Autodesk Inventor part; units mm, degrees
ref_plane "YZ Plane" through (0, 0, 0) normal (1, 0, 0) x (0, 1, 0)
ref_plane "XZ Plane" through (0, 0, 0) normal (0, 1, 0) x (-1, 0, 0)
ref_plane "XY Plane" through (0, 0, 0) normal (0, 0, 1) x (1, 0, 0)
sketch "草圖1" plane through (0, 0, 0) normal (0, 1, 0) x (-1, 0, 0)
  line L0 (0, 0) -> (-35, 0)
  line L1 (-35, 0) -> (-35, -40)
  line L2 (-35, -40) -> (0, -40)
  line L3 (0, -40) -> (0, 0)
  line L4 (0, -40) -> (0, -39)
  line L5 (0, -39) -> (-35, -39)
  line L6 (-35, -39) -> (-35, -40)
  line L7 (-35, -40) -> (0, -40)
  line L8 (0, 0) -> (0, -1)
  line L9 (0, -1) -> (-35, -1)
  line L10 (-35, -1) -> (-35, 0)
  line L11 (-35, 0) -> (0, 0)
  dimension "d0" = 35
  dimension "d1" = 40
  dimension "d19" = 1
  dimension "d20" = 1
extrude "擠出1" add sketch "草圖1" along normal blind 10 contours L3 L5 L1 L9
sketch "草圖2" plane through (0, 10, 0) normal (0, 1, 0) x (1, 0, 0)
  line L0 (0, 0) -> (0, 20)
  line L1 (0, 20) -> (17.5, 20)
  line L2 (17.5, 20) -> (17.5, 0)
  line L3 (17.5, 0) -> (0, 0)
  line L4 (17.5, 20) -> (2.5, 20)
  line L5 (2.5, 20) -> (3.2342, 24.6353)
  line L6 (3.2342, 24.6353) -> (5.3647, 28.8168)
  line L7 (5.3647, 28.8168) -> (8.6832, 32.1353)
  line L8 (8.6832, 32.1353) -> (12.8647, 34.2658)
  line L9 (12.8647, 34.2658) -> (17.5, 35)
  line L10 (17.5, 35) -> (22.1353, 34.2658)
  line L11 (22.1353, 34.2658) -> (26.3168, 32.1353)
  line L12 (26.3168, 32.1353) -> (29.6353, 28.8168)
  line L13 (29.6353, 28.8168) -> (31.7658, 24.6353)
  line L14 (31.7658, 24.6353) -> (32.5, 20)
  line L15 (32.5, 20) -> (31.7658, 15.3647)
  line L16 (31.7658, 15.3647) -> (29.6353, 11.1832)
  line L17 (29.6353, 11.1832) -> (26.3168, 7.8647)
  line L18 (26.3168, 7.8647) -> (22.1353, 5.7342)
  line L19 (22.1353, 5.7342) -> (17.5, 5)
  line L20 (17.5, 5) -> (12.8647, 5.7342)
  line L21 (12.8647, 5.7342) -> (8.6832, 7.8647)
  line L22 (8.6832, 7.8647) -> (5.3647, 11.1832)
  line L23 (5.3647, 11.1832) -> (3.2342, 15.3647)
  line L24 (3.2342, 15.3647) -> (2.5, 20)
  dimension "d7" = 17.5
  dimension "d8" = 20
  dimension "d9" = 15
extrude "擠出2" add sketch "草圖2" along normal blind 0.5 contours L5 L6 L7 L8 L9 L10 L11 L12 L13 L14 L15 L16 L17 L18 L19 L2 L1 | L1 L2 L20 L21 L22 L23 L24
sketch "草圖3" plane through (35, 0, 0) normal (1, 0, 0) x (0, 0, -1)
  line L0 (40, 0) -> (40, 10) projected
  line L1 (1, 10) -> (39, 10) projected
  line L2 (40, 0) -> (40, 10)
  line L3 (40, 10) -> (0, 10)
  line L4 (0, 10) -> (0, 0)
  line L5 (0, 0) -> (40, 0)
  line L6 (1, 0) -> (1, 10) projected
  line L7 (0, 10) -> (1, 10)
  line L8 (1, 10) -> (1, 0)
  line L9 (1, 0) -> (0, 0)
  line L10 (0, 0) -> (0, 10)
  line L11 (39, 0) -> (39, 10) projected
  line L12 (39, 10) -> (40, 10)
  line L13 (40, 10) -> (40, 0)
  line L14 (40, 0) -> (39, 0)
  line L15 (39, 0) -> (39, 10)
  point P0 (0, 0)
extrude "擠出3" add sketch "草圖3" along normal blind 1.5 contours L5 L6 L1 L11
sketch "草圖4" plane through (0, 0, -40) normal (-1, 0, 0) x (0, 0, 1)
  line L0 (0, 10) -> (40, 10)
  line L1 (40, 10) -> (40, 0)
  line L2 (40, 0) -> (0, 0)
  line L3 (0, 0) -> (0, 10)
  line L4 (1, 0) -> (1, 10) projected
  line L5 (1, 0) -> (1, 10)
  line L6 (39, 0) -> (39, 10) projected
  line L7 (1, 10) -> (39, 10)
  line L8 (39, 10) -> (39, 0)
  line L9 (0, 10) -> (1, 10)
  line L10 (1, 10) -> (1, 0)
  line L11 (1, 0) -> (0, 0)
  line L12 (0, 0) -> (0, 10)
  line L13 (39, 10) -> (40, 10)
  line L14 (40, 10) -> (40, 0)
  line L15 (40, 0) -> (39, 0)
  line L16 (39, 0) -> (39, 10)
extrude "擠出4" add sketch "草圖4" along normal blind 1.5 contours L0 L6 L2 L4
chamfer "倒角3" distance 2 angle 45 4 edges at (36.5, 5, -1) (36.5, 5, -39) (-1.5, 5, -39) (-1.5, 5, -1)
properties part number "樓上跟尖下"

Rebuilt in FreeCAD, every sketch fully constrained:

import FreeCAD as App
import Part
import Sketcher

V = App.Vector
Q = App.Units.Quantity


def edges_at(feature, points):
    """Names of the edges that pass closest to the given points."""
    edges = feature.Shape.Edges
    near = lambda p: min(range(len(edges)), key=lambda i: edges[i].distToShape(Part.Vertex(*p))[0])
    return sorted({f"Edge{near(p) + 1}" for p in points})

doc = App.newDocument("Part")
params = doc.addObject("Spreadsheet::Sheet", "Params")
for row, (alias, value) in enumerate([
    ("sketch1_width", "35 mm"),
    ("sketch1_height", "38 mm"),
    ("pad1_length", "10 mm"),
    ("pad2_length", "0.5 mm"),
    ("sketch3_width", "10 mm"),
    ("sketch3_height", "38 mm"),
    ("pad3_length", "1.5 mm"),
    ("sketch4_width", "10 mm"),
    ("sketch4_height", "38 mm"),
    ("pad4_length", "1.5 mm"),
    ("chamfer_size", "2 mm"),
], start=1):
    params.set(f"A{row}", alias)
    params.set(f"B{row}", "=" + value)
    params.setAlias(f"B{row}", alias)

body = doc.addObject("PartDesign::Body", "Body")

# Sketch on XZ plane
sketch1 = body.newObject("Sketcher::SketchObject", "Sketch")
sketch1.AttachmentSupport = (doc.getObject("XZ_Plane"), [""])
sketch1.MapMode = "FlatFace"
sketch1.addGeometry([
    Part.LineSegment(V(0, -39, 0), V(0, -1, 0)),
    Part.LineSegment(V(0, -1, 0), V(35, -1, 0)),
    Part.LineSegment(V(35, -1, 0), V(35, -39, 0)),
    Part.LineSegment(V(35, -39, 0), V(0, -39, 0)),
], False)
sketch1.addConstraint([
    Sketcher.Constraint("Coincident", 0, 2, 1, 1),
    Sketcher.Constraint("Coincident", 1, 2, 2, 1),
    Sketcher.Constraint("Coincident", 2, 2, 3, 1),
    Sketcher.Constraint("Coincident", 3, 2, 0, 1),
    Sketcher.Constraint("Vertical", 0),
    Sketcher.Constraint("Horizontal", 1),
    Sketcher.Constraint("Vertical", 2),
    Sketcher.Constraint("Horizontal", 3),
    Sketcher.Constraint("PointOnObject", 0, 2, -2),
    Sketcher.Constraint("DistanceX", 1, 1, 1, 2, Q("35 mm")),
    Sketcher.Constraint("DistanceY", 0, 2, -1, 1, Q("1 mm")),
    Sketcher.Constraint("DistanceY", 0, 1, 0, 2, Q("38 mm")),
])
sketch1.setExpression("Constraints[9]", "Params.sketch1_width")
sketch1.setExpression("Constraints[11]", "Params.sketch1_height")
pad1 = body.newObject("PartDesign::Pad", "Pad")
pad1.Profile = sketch1
pad1.setExpression("Length", "Params.pad1_length")
pad1.Reversed = True

# Sketch on XZ plane
sketch2 = body.newObject("Sketcher::SketchObject", "Sketch001")
sketch2.AttachmentSupport = (doc.getObject("XZ_Plane"), [""])
sketch2.MapMode = "FlatFace"
sketch2.AttachmentOffset = App.Placement(V(0, 0, -10), App.Rotation())
sketch2.addGeometry([
    Part.LineSegment(V(3.2342, -24.6353, 0), V(2.5, -20, 0)),  # 0
    Part.LineSegment(V(2.5, -20, 0), V(3.2342, -15.3647, 0)),  # 1
    Part.LineSegment(V(3.2342, -15.3647, 0), V(5.3647, -11.1832, 0)),  # 2
    Part.LineSegment(V(5.3647, -11.1832, 0), V(8.6832, -7.8647, 0)),  # 3
    Part.LineSegment(V(8.6832, -7.8647, 0), V(12.8647, -5.7342, 0)),  # 4
    Part.LineSegment(V(12.8647, -5.7342, 0), V(17.5, -5, 0)),  # 5
    Part.LineSegment(V(17.5, -5, 0), V(22.1353, -5.7342, 0)),  # 6
    Part.LineSegment(V(22.1353, -5.7342, 0), V(26.3168, -7.8647, 0)),  # 7
    Part.LineSegment(V(26.3168, -7.8647, 0), V(29.6353, -11.1832, 0)),  # 8
    Part.LineSegment(V(29.6353, -11.1832, 0), V(31.7658, -15.3647, 0)),  # 9
    Part.LineSegment(V(31.7658, -15.3647, 0), V(32.5, -20, 0)),  # 10
    Part.LineSegment(V(32.5, -20, 0), V(31.7658, -24.6353, 0)),  # 11
    Part.LineSegment(V(31.7658, -24.6353, 0), V(29.6353, -28.8168, 0)),  # 12
    Part.LineSegment(V(29.6353, -28.8168, 0), V(26.3168, -32.1353, 0)),  # 13
    Part.LineSegment(V(26.3168, -32.1353, 0), V(22.1353, -34.2658, 0)),  # 14
    Part.LineSegment(V(22.1353, -34.2658, 0), V(17.5, -35, 0)),  # 15
    Part.LineSegment(V(17.5, -35, 0), V(12.8647, -34.2658, 0)),  # 16
    Part.LineSegment(V(12.8647, -34.2658, 0), V(8.6832, -32.1353, 0)),  # 17
    Part.LineSegment(V(8.6832, -32.1353, 0), V(5.3647, -28.8168, 0)),  # 18
    Part.LineSegment(V(5.3647, -28.8168, 0), V(3.2342, -24.6353, 0)),  # 19
], False)
sketch2.addConstraint([
    Sketcher.Constraint("Coincident", 0, 2, 1, 1),
    Sketcher.Constraint("Coincident", 1, 2, 2, 1),
    Sketcher.Constraint("Coincident", 2, 2, 3, 1),
    Sketcher.Constraint("Coincident", 3, 2, 4, 1),
    Sketcher.Constraint("Coincident", 4, 2, 5, 1),
    Sketcher.Constraint("Coincident", 5, 2, 6, 1),
    Sketcher.Constraint("Coincident", 6, 2, 7, 1),
    Sketcher.Constraint("Coincident", 7, 2, 8, 1),
    Sketcher.Constraint("Coincident", 8, 2, 9, 1),
    Sketcher.Constraint("Coincident", 9, 2, 10, 1),
    Sketcher.Constraint("Coincident", 10, 2, 11, 1),
    Sketcher.Constraint("Coincident", 11, 2, 12, 1),
    Sketcher.Constraint("Coincident", 12, 2, 13, 1),
    Sketcher.Constraint("Coincident", 13, 2, 14, 1),
    Sketcher.Constraint("Coincident", 14, 2, 15, 1),
    Sketcher.Constraint("Coincident", 15, 2, 16, 1),
    Sketcher.Constraint("Coincident", 16, 2, 17, 1),
    Sketcher.Constraint("Coincident", 17, 2, 18, 1),
    Sketcher.Constraint("Coincident", 18, 2, 19, 1),
    Sketcher.Constraint("Coincident", 19, 2, 0, 1),
    Sketcher.Constraint("Perpendicular", 0, 5),
    Sketcher.Constraint("Perpendicular", 1, 6),
    Sketcher.Constraint("Perpendicular", 2, 7),
    Sketcher.Constraint("Perpendicular", 3, 8),
    Sketcher.Constraint("Perpendicular", 4, 9),
    Sketcher.Constraint("Perpendicular", 5, 10),
    Sketcher.Constraint("Perpendicular", 6, 11),
    Sketcher.Constraint("Perpendicular", 7, 12),
    Sketcher.Constraint("Perpendicular", 8, 13),
    Sketcher.Constraint("Perpendicular", 9, 14),
    Sketcher.Constraint("Perpendicular", 10, 15),
    Sketcher.Constraint("Perpendicular", 11, 16),
    Sketcher.Constraint("Perpendicular", 12, 17),
    Sketcher.Constraint("Perpendicular", 13, 18),
    Sketcher.Constraint("Perpendicular", 14, 19),
    Sketcher.Constraint("Horizontal", 4, 2, 6, 2),
    Sketcher.Constraint("Horizontal", 3, 2, 7, 2),
    Sketcher.Constraint("Horizontal", 2, 2, 8, 2),
    Sketcher.Constraint("Horizontal", 1, 2, 9, 2),
    Sketcher.Constraint("Horizontal", 0, 2, 10, 2),
    Sketcher.Constraint("Horizontal", 14, 2, 16, 2),
    Sketcher.Constraint("Horizontal", 13, 2, 17, 2),
    Sketcher.Constraint("Horizontal", 12, 2, 18, 2),
    Sketcher.Constraint("Horizontal", 11, 2, 19, 2),
    Sketcher.Constraint("Vertical", 9, 2, 11, 2),
    Sketcher.Constraint("Vertical", 8, 2, 12, 2),
    Sketcher.Constraint("Vertical", 7, 2, 13, 2),
    Sketcher.Constraint("Vertical", 6, 2, 14, 2),
    Sketcher.Constraint("Vertical", 5, 2, 15, 2),
    Sketcher.Constraint("Vertical", 4, 2, 16, 2),
    Sketcher.Constraint("Vertical", 3, 2, 17, 2),
    Sketcher.Constraint("Equal", 1, 2),
    Sketcher.Constraint("Equal", 2, 3),
    Sketcher.Constraint("Equal", 3, 4),
    Sketcher.Constraint("Equal", 4, 5),
    Sketcher.Constraint("DistanceY", 0, 2, -1, 1, Q("20 mm")),
    Sketcher.Constraint("DistanceX", 0, 2, 5, 2, Q("15 mm")),
    Sketcher.Constraint("DistanceX", -1, 1, 5, 2, Q("17.5 mm")),
    Sketcher.Constraint("Angle", 0, Q("99.0005 deg")),
    Sketcher.Constraint("Angle", 2, Q("63.0009 deg")),
])
pad2 = body.newObject("PartDesign::Pad", "Pad001")
pad2.Profile = sketch2
pad2.setExpression("Length", "Params.pad2_length")
pad2.Reversed = True

# Sketch on YZ plane
sketch3 = body.newObject("Sketcher::SketchObject", "Sketch002")
sketch3.AttachmentSupport = (doc.getObject("YZ_Plane"), [""])
sketch3.MapMode = "FlatFace"
sketch3.AttachmentOffset = App.Placement(V(0, 0, 35), App.Rotation())
sketch3.addGeometry([
    Part.LineSegment(V(0, -1, 0), V(0, -39, 0)),
    Part.LineSegment(V(0, -39, 0), V(10, -39, 0)),
    Part.LineSegment(V(10, -39, 0), V(10, -1, 0)),
    Part.LineSegment(V(10, -1, 0), V(0, -1, 0)),
], False)
sketch3.addConstraint([
    Sketcher.Constraint("Coincident", 0, 2, 1, 1),
    Sketcher.Constraint("Coincident", 1, 2, 2, 1),
    Sketcher.Constraint("Coincident", 2, 2, 3, 1),
    Sketcher.Constraint("Coincident", 3, 2, 0, 1),
    Sketcher.Constraint("Vertical", 0),
    Sketcher.Constraint("Horizontal", 1),
    Sketcher.Constraint("Vertical", 2),
    Sketcher.Constraint("Horizontal", 3),
    Sketcher.Constraint("PointOnObject", 0, 2, -2),
    Sketcher.Constraint("DistanceX", 1, 1, 1, 2, Q("10 mm")),
    Sketcher.Constraint("DistanceY", 0, 2, 0, 1, Q("38 mm")),
    Sketcher.Constraint("DistanceY", 0, 2, -1, 1, Q("39 mm")),
])
sketch3.setExpression("Constraints[9]", "Params.sketch3_width")
sketch3.setExpression("Constraints[10]", "Params.sketch3_height")
pad3 = body.newObject("PartDesign::Pad", "Pad002")
pad3.Profile = sketch3
pad3.setExpression("Length", "Params.pad3_length")

# Sketch on YZ plane
sketch4 = body.newObject("Sketcher::SketchObject", "Sketch003")
sketch4.AttachmentSupport = (doc.getObject("YZ_Plane"), [""])
sketch4.MapMode = "FlatFace"
sketch4.addGeometry([
    Part.LineSegment(V(10, -1, 0), V(10, -39, 0)),
    Part.LineSegment(V(10, -39, 0), V(0, -39, 0)),
    Part.LineSegment(V(0, -39, 0), V(0, -1, 0)),
    Part.LineSegment(V(0, -1, 0), V(10, -1, 0)),
], False)
sketch4.addConstraint([
    Sketcher.Constraint("Coincident", 0, 2, 1, 1),
    Sketcher.Constraint("Coincident", 1, 2, 2, 1),
    Sketcher.Constraint("Coincident", 2, 2, 3, 1),
    Sketcher.Constraint("Coincident", 3, 2, 0, 1),
    Sketcher.Constraint("Vertical", 0),
    Sketcher.Constraint("Horizontal", 1),
    Sketcher.Constraint("Vertical", 2),
    Sketcher.Constraint("Horizontal", 3),
    Sketcher.Constraint("PointOnObject", 1, 2, -2),
    Sketcher.Constraint("DistanceX", 1, 2, 1, 1, Q("10 mm")),
    Sketcher.Constraint("DistanceY", 0, 2, 0, 1, Q("38 mm")),
    Sketcher.Constraint("DistanceY", 0, 2, -1, 1, Q("39 mm")),
])
sketch4.setExpression("Constraints[9]", "Params.sketch4_width")
sketch4.setExpression("Constraints[10]", "Params.sketch4_height")
pad4 = body.newObject("PartDesign::Pad", "Pad003")
pad4.Profile = sketch4
pad4.setExpression("Length", "Params.pad4_length")
pad4.Reversed = True
doc.recompute()

chamfer = body.newObject("PartDesign::Chamfer", "Chamfer")
chamfer.Base = (pad4, edges_at(pad4, [
    (36.5, 5, -1),
    (36.5, 5, -39),
    (-1.5, 5, -39),
    (-1.5, 5, -1),
]))
chamfer.setExpression("Size", "Params.chamfer_size")

doc.recompute()
